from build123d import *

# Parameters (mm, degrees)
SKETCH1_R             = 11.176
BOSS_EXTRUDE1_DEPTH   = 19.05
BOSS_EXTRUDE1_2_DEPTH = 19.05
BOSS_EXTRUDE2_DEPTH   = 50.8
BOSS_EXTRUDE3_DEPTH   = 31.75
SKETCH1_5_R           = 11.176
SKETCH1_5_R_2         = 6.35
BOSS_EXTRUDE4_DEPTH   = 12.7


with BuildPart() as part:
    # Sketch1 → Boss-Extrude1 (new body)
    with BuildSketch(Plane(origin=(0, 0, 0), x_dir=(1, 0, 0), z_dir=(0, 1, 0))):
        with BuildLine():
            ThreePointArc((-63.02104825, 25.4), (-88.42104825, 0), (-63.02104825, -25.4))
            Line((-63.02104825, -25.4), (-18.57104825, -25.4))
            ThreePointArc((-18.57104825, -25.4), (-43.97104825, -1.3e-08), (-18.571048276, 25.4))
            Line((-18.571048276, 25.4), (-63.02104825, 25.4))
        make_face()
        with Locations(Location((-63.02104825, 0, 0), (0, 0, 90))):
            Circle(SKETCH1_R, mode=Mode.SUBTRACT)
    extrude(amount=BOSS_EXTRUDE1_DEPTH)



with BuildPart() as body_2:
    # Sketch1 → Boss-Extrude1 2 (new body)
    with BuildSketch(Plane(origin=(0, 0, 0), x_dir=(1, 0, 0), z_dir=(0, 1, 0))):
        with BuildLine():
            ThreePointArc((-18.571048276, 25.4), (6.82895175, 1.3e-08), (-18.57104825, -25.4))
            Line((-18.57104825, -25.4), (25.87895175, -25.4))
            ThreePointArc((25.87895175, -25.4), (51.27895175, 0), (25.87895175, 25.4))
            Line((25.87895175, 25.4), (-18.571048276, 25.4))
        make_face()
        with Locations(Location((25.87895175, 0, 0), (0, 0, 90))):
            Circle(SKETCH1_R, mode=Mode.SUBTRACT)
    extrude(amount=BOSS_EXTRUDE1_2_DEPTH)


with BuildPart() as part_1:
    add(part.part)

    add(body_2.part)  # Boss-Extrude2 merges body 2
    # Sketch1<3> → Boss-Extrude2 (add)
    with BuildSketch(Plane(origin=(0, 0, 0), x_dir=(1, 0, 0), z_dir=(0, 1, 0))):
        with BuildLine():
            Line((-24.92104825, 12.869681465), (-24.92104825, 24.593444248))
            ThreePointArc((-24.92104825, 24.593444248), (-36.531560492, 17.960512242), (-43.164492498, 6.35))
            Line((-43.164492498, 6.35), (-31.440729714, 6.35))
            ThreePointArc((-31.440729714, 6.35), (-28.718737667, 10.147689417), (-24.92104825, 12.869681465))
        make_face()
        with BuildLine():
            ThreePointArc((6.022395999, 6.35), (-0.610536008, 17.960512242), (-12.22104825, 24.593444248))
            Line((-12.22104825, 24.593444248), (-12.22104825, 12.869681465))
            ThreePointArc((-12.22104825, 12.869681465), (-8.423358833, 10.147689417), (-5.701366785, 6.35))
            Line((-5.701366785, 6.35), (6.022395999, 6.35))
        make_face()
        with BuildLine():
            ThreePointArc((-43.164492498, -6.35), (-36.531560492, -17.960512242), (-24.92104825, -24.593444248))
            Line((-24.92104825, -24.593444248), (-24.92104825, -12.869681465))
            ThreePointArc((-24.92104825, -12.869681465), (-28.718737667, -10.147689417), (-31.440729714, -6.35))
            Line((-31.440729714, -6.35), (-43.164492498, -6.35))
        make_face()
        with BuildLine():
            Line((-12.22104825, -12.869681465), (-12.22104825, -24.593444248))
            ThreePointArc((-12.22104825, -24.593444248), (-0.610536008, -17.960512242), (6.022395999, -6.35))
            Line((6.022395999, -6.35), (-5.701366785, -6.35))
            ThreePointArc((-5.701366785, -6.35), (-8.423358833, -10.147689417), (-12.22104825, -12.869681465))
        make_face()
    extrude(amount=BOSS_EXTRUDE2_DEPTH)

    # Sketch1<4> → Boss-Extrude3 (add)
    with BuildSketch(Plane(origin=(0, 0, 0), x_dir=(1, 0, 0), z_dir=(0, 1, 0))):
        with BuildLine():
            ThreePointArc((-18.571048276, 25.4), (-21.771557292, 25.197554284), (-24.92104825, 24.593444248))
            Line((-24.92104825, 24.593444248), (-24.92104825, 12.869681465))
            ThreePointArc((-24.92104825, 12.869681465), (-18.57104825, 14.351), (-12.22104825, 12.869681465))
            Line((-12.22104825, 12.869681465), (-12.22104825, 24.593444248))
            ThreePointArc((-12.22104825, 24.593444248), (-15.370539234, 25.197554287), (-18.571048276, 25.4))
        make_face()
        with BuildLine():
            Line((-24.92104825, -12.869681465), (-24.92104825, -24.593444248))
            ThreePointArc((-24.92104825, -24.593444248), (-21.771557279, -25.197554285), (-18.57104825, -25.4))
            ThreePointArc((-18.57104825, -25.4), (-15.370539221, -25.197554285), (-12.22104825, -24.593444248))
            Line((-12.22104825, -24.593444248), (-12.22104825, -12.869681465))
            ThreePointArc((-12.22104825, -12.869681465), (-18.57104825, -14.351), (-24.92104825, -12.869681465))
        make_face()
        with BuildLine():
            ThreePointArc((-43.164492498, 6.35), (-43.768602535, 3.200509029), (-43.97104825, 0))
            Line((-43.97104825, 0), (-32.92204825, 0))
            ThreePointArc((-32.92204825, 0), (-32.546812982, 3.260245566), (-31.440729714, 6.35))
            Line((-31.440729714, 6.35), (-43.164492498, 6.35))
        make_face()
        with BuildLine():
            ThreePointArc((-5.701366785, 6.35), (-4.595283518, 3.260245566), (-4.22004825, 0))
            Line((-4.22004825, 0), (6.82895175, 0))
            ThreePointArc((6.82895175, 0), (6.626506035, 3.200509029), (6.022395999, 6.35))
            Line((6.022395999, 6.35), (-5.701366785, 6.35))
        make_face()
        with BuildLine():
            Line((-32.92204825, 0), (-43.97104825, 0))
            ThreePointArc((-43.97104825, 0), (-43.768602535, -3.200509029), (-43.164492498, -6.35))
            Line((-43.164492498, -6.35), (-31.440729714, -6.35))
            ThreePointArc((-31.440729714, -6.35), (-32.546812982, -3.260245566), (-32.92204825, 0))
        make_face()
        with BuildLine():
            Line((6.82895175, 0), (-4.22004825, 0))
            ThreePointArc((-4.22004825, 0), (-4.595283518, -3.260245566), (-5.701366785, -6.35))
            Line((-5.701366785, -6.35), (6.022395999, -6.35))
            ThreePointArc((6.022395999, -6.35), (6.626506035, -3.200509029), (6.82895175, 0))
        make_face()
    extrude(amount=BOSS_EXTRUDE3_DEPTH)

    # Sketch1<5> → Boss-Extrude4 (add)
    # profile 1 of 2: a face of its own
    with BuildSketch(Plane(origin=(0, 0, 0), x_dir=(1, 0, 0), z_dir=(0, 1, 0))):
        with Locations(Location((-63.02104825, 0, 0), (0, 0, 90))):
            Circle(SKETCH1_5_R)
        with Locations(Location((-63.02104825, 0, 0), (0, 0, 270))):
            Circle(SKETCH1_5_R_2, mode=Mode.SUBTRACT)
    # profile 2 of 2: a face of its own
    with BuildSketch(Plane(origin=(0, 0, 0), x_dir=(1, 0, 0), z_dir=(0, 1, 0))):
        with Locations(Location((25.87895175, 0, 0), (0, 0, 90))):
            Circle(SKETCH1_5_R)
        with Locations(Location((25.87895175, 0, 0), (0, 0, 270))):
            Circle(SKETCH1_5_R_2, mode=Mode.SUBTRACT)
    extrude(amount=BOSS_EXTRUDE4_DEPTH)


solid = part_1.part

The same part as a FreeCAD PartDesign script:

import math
import FreeCAD as App
import Part
import Sketcher
from FreeCAD import Vector
Q = App.Units.Quantity

doc = App.newDocument("Part")
body = doc.addObject("PartDesign::Body", "Body")

sketch1 = body.newObject("Sketcher::SketchObject", "Sketch")
sketch1.AttachmentSupport = (doc.getObject("XZ_Plane"), [""])
sketch1.MapMode = "FlatFace"
sketch1.addGeometry([
    Part.ArcOfCircle(Part.Circle(Vector(-63.021048, 0, 0), Vector(0, 0, 1), 25.4), math.radians(90), math.radians(270)),
    Part.LineSegment(Vector(-63.021048, 25.4, 0), Vector(-18.571048, 25.4, 0)),
    Part.ArcOfCircle(Part.Circle(Vector(-18.571048, 0, 0), Vector(0, 0, 1), 25.4), math.radians(90), math.radians(270)),
    Part.LineSegment(Vector(-18.571048, -25.4, 0), Vector(-63.021048, -25.4, 0)),
    Part.Circle(Vector(-63.021048, 0, 0), Vector(0, 0, 1), 11.176),
], False)
sketch1.addConstraint([
    Sketcher.Constraint("Tangent", 0, 1, 1, 1),
    Sketcher.Constraint("Tangent", 1, 2, 2, 1),
    Sketcher.Constraint("Tangent", 2, 2, 3, 1),
    Sketcher.Constraint("Tangent", 3, 2, 0, 2),
    Sketcher.Constraint("Horizontal", 1),
    Sketcher.Constraint("Horizontal", 3),
    Sketcher.Constraint("Coincident", 4, 3, 0, 3),
    Sketcher.Constraint("PointOnObject", 0, 3, -1),
    Sketcher.Constraint("Radius", 0, Q("1 in")),
    Sketcher.Constraint("Diameter", 4, Q("0.88 in")),
    Sketcher.Constraint("DistanceX", 1, 1, 1, 2, Q("1.75 in")),
    Sketcher.Constraint("DistanceX", 0, 3, -1, 1, 63.021048),
])
pad1 = body.newObject("PartDesign::Pad", "Pad")
pad1.Profile = sketch1
pad1.Length = Q("0.75 in")
pad1.Reversed = True
body2 = doc.addObject("PartDesign::Body", "Body001")

sketch2 = body2.newObject("Sketcher::SketchObject", "Sketch001")
sketch2.AttachmentSupport = (doc.getObject("XZ_Plane001"), [""])
sketch2.MapMode = "FlatFace"
sketch2.addGeometry([
    Part.ArcOfCircle(Part.Circle(Vector(-18.571048, 0, 0), Vector(0, 0, 1), 25.4), math.radians(-90), math.radians(90)),
    Part.LineSegment(Vector(-18.571048, 25.4, 0), Vector(25.878952, 25.4, 0)),
    Part.ArcOfCircle(Part.Circle(Vector(25.878952, 0, 0), Vector(0, 0, 1), 25.4), math.radians(-90), math.radians(90)),
    Part.LineSegment(Vector(25.878952, -25.4, 0), Vector(-18.571048, -25.4, 0)),
    Part.Circle(Vector(25.878952, 0, 0), Vector(0, 0, 1), 11.176),
], False)
sketch2.addConstraint([
    Sketcher.Constraint("Tangent", 0, 2, 1, 1),
    Sketcher.Constraint("Tangent", 1, 2, 2, 2),
    Sketcher.Constraint("Tangent", 2, 1, 3, 1),
    Sketcher.Constraint("Tangent", 3, 2, 0, 1),
    Sketcher.Constraint("Horizontal", 1),
    Sketcher.Constraint("Horizontal", 3),
    Sketcher.Constraint("Coincident", 4, 3, 2, 3),
    Sketcher.Constraint("PointOnObject", 0, 3, -1),
    Sketcher.Constraint("Radius", 0, Q("1 in")),
    Sketcher.Constraint("Diameter", 4, Q("0.88 in")),
    Sketcher.Constraint("DistanceX", 1, 1, 1, 2, Q("1.75 in")),
    Sketcher.Constraint("DistanceX", 0, 3, -1, 1, 18.571048),
])
pad2 = body2.newObject("PartDesign::Pad", "Pad001")
pad2.Profile = sketch2
pad2.Length = Q("0.75 in")
pad2.Reversed = True
body.AllowCompound = True
doc.recompute()

boolean = body.newObject("PartDesign::Boolean", "Boolean")
boolean.Type = "Fuse"
boolean.addObjects([body2])

sketch3 = body.newObject("Sketcher::SketchObject", "Sketch002")
sketch3.AttachmentSupport = (doc.getObject("XZ_Plane"), [""])
sketch3.MapMode = "FlatFace"
sketch3.addGeometry([
    Part.LineSegment(Vector(-24.921048, -12.869681, 0), Vector(-24.921048, -24.593444, 0)),
    Part.ArcOfCircle(Part.Circle(Vector(-18.571048, 0, 0), Vector(0, 0, 1), 25.4), math.radians(-165.522488), math.radians(-104.477512)),
    Part.LineSegment(Vector(-43.164492, -6.35, 0), Vector(-31.44073, -6.35, 0)),
    Part.ArcOfCircle(Part.Circle(Vector(-18.571048, 0, 0), Vector(0, 0, 1), 14.351), math.radians(-153.737913), math.radians(-116.262087)),
    Part.ArcOfCircle(Part.Circle(Vector(-18.571048, 0, 0), Vector(0, 0, 1), 25.4), math.radians(-75.522488), math.radians(-14.477512)),
    Part.LineSegment(Vector(-12.221048, -24.593444, 0), Vector(-12.221048, -12.869681, 0)),
    Part.ArcOfCircle(Part.Circle(Vector(-18.571048, 0, 0), Vector(0, 0, 1), 14.351), math.radians(-63.737913), math.radians(-26.262087)),
    Part.LineSegment(Vector(-5.701367, -6.35, 0), Vector(6.022396, -6.35, 0)),
    Part.ArcOfCircle(Part.Circle(Vector(-18.571048, 0, 0), Vector(0, 0, 1), 25.4), math.radians(104.477512), math.radians(165.522488)),
    Part.LineSegment(Vector(-24.921048, 24.593444, 0), Vector(-24.921048, 12.869681, 0)),
    Part.ArcOfCircle(Part.Circle(Vector(-18.571048, 0, 0), Vector(0, 0, 1), 14.351), math.radians(116.262087), math.radians(153.737913)),
    Part.LineSegment(Vector(-31.44073, 6.35, 0), Vector(-43.164492, 6.35, 0)),
    Part.LineSegment(Vector(-12.221048, 12.869681, 0), Vector(-12.221048, 24.593444, 0)),
    Part.ArcOfCircle(Part.Circle(Vector(-18.571048, 0, 0), Vector(0, 0, 1), 25.4), math.radians(14.477512), math.radians(75.522488)),
    Part.LineSegment(Vector(6.022396, 6.35, 0), Vector(-5.701367, 6.35, 0)),
    Part.ArcOfCircle(Part.Circle(Vector(-18.571048, 0, 0), Vector(0, 0, 1), 14.351), math.radians(26.262087), math.radians(63.737913)),
], False)
sketch3.addConstraint([
    Sketcher.Constraint("Coincident", 0, 2, 1, 2),
    Sketcher.Constraint("Coincident", 1, 1, 2, 1),
    Sketcher.Constraint("Coincident", 2, 2, 3, 1),
    Sketcher.Constraint("Coincident", 3, 2, 0, 1),
    Sketcher.Constraint("Coincident", 4, 1, 5, 1),
    Sketcher.Constraint("Coincident", 5, 2, 6, 1),
    Sketcher.Constraint("Coincident", 6, 2, 7, 1),
    Sketcher.Constraint("Coincident", 7, 2, 4, 2),
    Sketcher.Constraint("Coincident", 8, 1, 9, 1),
    Sketcher.Constraint("Coincident", 9, 2, 10, 1),
    Sketcher.Constraint("Coincident", 10, 2, 11, 1),
    Sketcher.Constraint("Coincident", 11, 2, 8, 2),
    Sketcher.Constraint("Coincident", 12, 2, 13, 2),
    Sketcher.Constraint("Coincident", 13, 1, 14, 1),
    Sketcher.Constraint("Coincident", 14, 2, 15, 1),
    Sketcher.Constraint("Coincident", 15, 2, 12, 1),
    Sketcher.Constraint("Vertical", 0),
    Sketcher.Constraint("Horizontal", 2),
    Sketcher.Constraint("Vertical", 5),
    Sketcher.Constraint("Horizontal", 7),
    Sketcher.Constraint("Vertical", 9),
    Sketcher.Constraint("Horizontal", 11),
    Sketcher.Constraint("Vertical", 12),
    Sketcher.Constraint("Horizontal", 14),
    Sketcher.Constraint("Coincident", 3, 3, 1, 3),
    Sketcher.Constraint("Coincident", 4, 3, 1, 3),
    Sketcher.Constraint("Coincident", 6, 3, 1, 3),
    Sketcher.Constraint("Coincident", 8, 3, 1, 3),
    Sketcher.Constraint("Coincident", 10, 3, 1, 3),
    Sketcher.Constraint("Coincident", 13, 3, 1, 3),
    Sketcher.Constraint("Coincident", 15, 3, 1, 3),
    Sketcher.Constraint("Equal", 1, 4),
    Sketcher.Constraint("Equal", 3, 6),
    Sketcher.Constraint("Equal", 4, 8),
    Sketcher.Constraint("Equal", 6, 10),
    Sketcher.Constraint("Equal", 8, 13),
    Sketcher.Constraint("Equal", 10, 15),
    Sketcher.Constraint("Symmetric", 0, 2, 8, 1, -1),
    Sketcher.Constraint("Horizontal", 0, 2, 4, 1),
    Sketcher.Constraint("Horizontal", 2, 2, 6, 2),
    Sketcher.Constraint("Horizontal", 8, 1, 12, 2),
    Sketcher.Constraint("Horizontal", 11, 2, 13, 1),
    Sketcher.Constraint("Vertical", 2, 2, 10, 2),
    Sketcher.Constraint("Equal", 14, 0),
    Sketcher.Constraint("Radius", 1, Q("1 in")),
    Sketcher.Constraint("Radius", 3, Q("0.565 in")),
    Sketcher.Constraint("DistanceX", 0, 2, 4, 1, Q("0.5 in")),
    Sketcher.Constraint("DistanceX", 1, 3, -1, 1, 18.571048),
])
pad3 = body.newObject("PartDesign::Pad", "Pad002")
pad3.Profile = sketch3
pad3.Length = Q("2 in")
pad3.Reversed = True

sketch4 = body.newObject("Sketcher::SketchObject", "Sketch003")
sketch4.AttachmentSupport = (doc.getObject("XZ_Plane"), [""])
sketch4.MapMode = "FlatFace"
sketch4.addGeometry([
    Part.ArcOfCircle(Part.Circle(Vector(-18.571048, 0, 0), Vector(0, 0, 1), 25.4), math.radians(-104.477512), math.radians(-90)),
    Part.LineSegment(Vector(-24.921048, -24.593444, 0), Vector(-24.921048, -12.869681, 0)),
    Part.ArcOfCircle(Part.Circle(Vector(-18.571048, 0, 0), Vector(0, 0, 1), 14.351), math.radians(-116.262087), math.radians(-63.737913)),
    Part.LineSegment(Vector(-12.221048, -12.869681, 0), Vector(-12.221048, -24.593444, 0)),
    Part.ArcOfCircle(Part.Circle(Vector(-18.571048, 0, 0), Vector(0, 0, 1), 25.4), math.radians(-90), math.radians(-75.522488)),
    Part.LineSegment(Vector(-24.921048, 12.869681, 0), Vector(-24.921048, 24.593444, 0)),
    Part.ArcOfCircle(Part.Circle(Vector(-18.571048, 0, 0), Vector(0, 0, 1), 25.4), math.radians(90), math.radians(104.477512)),
    Part.ArcOfCircle(Part.Circle(Vector(-18.571048, 0, 0), Vector(0, 0, 1), 25.4), math.radians(75.522488), math.radians(90)),
    Part.LineSegment(Vector(-12.221048, 24.593444, 0), Vector(-12.221048, 12.869681, 0)),
    Part.ArcOfCircle(Part.Circle(Vector(-18.571048, 0, 0), Vector(0, 0, 1), 14.351), math.radians(63.737913), math.radians(116.262087)),
    Part.LineSegment(Vector(-31.44073, -6.35, 0), Vector(-43.164492, -6.35, 0)),
    Part.ArcOfCircle(Part.Circle(Vector(-18.571048, 0, 0), Vector(0, 0, 1), 25.4), math.radians(-180), math.radians(-165.522488)),
    Part.ArcOfCircle(Part.Circle(Vector(-18.571048, 0, 0), Vector(0, 0, 1), 25.4), math.radians(165.522488), math.radians(180)),
    Part.LineSegment(Vector(-43.164492, 6.35, 0), Vector(-31.44073, 6.35, 0)),
    Part.ArcOfCircle(Part.Circle(Vector(-18.571048, 0, 0), Vector(0, 0, 1), 14.351), math.radians(153.737913), math.radians(180)),
    Part.ArcOfCircle(Part.Circle(Vector(-18.571048, 0, 0), Vector(0, 0, 1), 14.351), math.radians(180), math.radians(206.262087)),
    Part.LineSegment(Vector(6.022396, -6.35, 0), Vector(-5.701367, -6.35, 0)),
    Part.ArcOfCircle(Part.Circle(Vector(-18.571048, 0, 0), Vector(0, 0, 1), 14.351), math.radians(-26.262087), math.radians(0)),
    Part.ArcOfCircle(Part.Circle(Vector(-18.571048, 0, 0), Vector(0, 0, 1), 14.351), math.radians(0), math.radians(26.262087)),
    Part.LineSegment(Vector(-5.701367, 6.35, 0), Vector(6.022396, 6.35, 0)),
    Part.ArcOfCircle(Part.Circle(Vector(-18.571048, 0, 0), Vector(0, 0, 1), 25.4), math.radians(0), math.radians(14.477512)),
    Part.ArcOfCircle(Part.Circle(Vector(-18.571048, 0, 0), Vector(0, 0, 1), 25.4), math.radians(-14.477512), math.radians(0)),
], False)
sketch4.addConstraint([
    Sketcher.Constraint("Coincident", 0, 1, 1, 1),
    Sketcher.Constraint("Coincident", 1, 2, 2, 1),
    Sketcher.Constraint("Coincident", 2, 2, 3, 1),
    Sketcher.Constraint("Coincident", 3, 2, 4, 2),
    Sketcher.Constraint("Tangent", 4, 1, 0, 2),
    Sketcher.Constraint("Coincident", 5, 2, 6, 2),
    Sketcher.Constraint("Tangent", 6, 1, 7, 2),
    Sketcher.Constraint("Coincident", 7, 1, 8, 1),
    Sketcher.Constraint("Coincident", 8, 2, 9, 1),
    Sketcher.Constraint("Coincident", 9, 2, 5, 1),
    Sketcher.Constraint("Coincident", 10, 2, 11, 2),
    Sketcher.Constraint("Tangent", 11, 1, 12, 2),
    Sketcher.Constraint("Coincident", 12, 1, 13, 1),
    Sketcher.Constraint("Coincident", 13, 2, 14, 1),
    Sketcher.Constraint("Tangent", 14, 2, 15, 1),
    Sketcher.Constraint("Coincident", 15, 2, 10, 1),
    Sketcher.Constraint("Coincident", 16, 2, 17, 1),
    Sketcher.Constraint("Tangent", 17, 2, 18, 1),
    Sketcher.Constraint("Coincident", 18, 2, 19, 1),
    Sketcher.Constraint("Coincident", 19, 2, 20, 2),
    Sketcher.Constraint("Tangent", 20, 1, 21, 2),
    Sketcher.Constraint("Coincident", 21, 1, 16, 1),
    Sketcher.Constraint("Vertical", 1),
    Sketcher.Constraint("Vertical", 3),
    Sketcher.Constraint("Vertical", 5),
    Sketcher.Constraint("Vertical", 8),
    Sketcher.Constraint("Horizontal", 10),
    Sketcher.Constraint("Horizontal", 13),
    Sketcher.Constraint("Horizontal", 16),
    Sketcher.Constraint("Horizontal", 19),
    Sketcher.Constraint("Coincident", 2, 3, 0, 3),
    Sketcher.Constraint("Coincident", 6, 3, 0, 3),
    Sketcher.Constraint("Coincident", 9, 3, 0, 3),
    Sketcher.Constraint("Coincident", 11, 3, 0, 3),
    Sketcher.Constraint("Coincident", 14, 3, 0, 3),
    Sketcher.Constraint("Coincident", 17, 3, 0, 3),
    Sketcher.Constraint("Coincident", 20, 3, 0, 3),
    Sketcher.Constraint("Equal", 0, 4),
    Sketcher.Constraint("Equal", 4, 6),
    Sketcher.Constraint("Equal", 6, 7),
    Sketcher.Constraint("Equal", 2, 9),
    Sketcher.Constraint("Equal", 7, 11),
    Sketcher.Constraint("Equal", 11, 12),
    Sketcher.Constraint("Equal", 9, 14),
    Sketcher.Constraint("Equal", 14, 15),
    Sketcher.Constraint("Equal", 15, 17),
    Sketcher.Constraint("Equal", 17, 18),
    Sketcher.Constraint("Equal", 12, 20),
    Sketcher.Constraint("Equal", 20, 21),
    Sketcher.Constraint("Symmetric", 0, 1, 5, 2, -1),
    Sketcher.Constraint("PointOnObject", 11, 1, -1),
    Sketcher.Constraint("PointOnObject", 14, 2, -1),
    Sketcher.Constraint("PointOnObject", 17, 2, -1),
    Sketcher.Constraint("PointOnObject", 20, 1, -1),
    Sketcher.Constraint("Horizontal", 1, 2, 2, 2),
    Sketcher.Constraint("Horizontal", 5, 2, 7, 1),
    Sketcher.Constraint("Horizontal", 15, 2, 16, 2),
    Sketcher.Constraint("Horizontal", 13, 2, 18, 2),
    Sketcher.Constraint("Vertical", 21, 3, 4, 1),
    Sketcher.Constraint("Vertical", 4, 1, 6, 1),
    Sketcher.Constraint("Vertical", 10, 2, 12, 1),
    Sketcher.Constraint("Equal", 19, 1),
    Sketcher.Constraint("Radius", 0, Q("1 in")),
    Sketcher.Constraint("Radius", 2, Q("0.565 in")),
    Sketcher.Constraint("DistanceX", 1, 2, 2, 2, Q("0.5 in")),
    Sketcher.Constraint("DistanceX", 0, 3, -1, 1, 18.571048),
])
pad4 = body.newObject("PartDesign::Pad", "Pad003")
pad4.Profile = sketch4
pad4.Length = Q("1.25 in")
pad4.Reversed = True

sketch5 = body.newObject("Sketcher::SketchObject", "Sketch004")
sketch5.AttachmentSupport = (doc.getObject("XZ_Plane"), [""])
sketch5.MapMode = "FlatFace"
sketch5.addGeometry([
    Part.Circle(Vector(-63.021048, 0, 0), Vector(0, 0, 1), 11.176),
    Part.Circle(Vector(-63.021048, 0, 0), Vector(0, 0, 1), 6.35),
    Part.Circle(Vector(25.878952, 0, 0), Vector(0, 0, 1), 11.176),
    Part.Circle(Vector(25.878952, 0, 0), Vector(0, 0, 1), 6.35),
], False)
sketch5.addConstraint([
    Sketcher.Constraint("Coincident", 1, 3, 0, 3),
    Sketcher.Constraint("Coincident", 3, 3, 2, 3),
    Sketcher.Constraint("Equal", 0, 2),
    Sketcher.Constraint("Equal", 1, 3),
    Sketcher.Constraint("PointOnObject", 0, 3, -1),
    Sketcher.Constraint("PointOnObject", 2, 3, -1),
    Sketcher.Constraint("Diameter", 1, Q("0.5 in")),
    Sketcher.Constraint("Diameter", 0, Q("0.88 in")),
    Sketcher.Constraint("DistanceX", 0, 3, 2, 3, Q("3.5 in")),
    Sketcher.Constraint("DistanceX", 0, 3, -1, 1, 63.021048),
])
pad5 = body.newObject("PartDesign::Pad", "Pad004")
pad5.Profile = sketch5
pad5.Length = Q("0.5 in")
pad5.Reversed = True

doc.recompute()
